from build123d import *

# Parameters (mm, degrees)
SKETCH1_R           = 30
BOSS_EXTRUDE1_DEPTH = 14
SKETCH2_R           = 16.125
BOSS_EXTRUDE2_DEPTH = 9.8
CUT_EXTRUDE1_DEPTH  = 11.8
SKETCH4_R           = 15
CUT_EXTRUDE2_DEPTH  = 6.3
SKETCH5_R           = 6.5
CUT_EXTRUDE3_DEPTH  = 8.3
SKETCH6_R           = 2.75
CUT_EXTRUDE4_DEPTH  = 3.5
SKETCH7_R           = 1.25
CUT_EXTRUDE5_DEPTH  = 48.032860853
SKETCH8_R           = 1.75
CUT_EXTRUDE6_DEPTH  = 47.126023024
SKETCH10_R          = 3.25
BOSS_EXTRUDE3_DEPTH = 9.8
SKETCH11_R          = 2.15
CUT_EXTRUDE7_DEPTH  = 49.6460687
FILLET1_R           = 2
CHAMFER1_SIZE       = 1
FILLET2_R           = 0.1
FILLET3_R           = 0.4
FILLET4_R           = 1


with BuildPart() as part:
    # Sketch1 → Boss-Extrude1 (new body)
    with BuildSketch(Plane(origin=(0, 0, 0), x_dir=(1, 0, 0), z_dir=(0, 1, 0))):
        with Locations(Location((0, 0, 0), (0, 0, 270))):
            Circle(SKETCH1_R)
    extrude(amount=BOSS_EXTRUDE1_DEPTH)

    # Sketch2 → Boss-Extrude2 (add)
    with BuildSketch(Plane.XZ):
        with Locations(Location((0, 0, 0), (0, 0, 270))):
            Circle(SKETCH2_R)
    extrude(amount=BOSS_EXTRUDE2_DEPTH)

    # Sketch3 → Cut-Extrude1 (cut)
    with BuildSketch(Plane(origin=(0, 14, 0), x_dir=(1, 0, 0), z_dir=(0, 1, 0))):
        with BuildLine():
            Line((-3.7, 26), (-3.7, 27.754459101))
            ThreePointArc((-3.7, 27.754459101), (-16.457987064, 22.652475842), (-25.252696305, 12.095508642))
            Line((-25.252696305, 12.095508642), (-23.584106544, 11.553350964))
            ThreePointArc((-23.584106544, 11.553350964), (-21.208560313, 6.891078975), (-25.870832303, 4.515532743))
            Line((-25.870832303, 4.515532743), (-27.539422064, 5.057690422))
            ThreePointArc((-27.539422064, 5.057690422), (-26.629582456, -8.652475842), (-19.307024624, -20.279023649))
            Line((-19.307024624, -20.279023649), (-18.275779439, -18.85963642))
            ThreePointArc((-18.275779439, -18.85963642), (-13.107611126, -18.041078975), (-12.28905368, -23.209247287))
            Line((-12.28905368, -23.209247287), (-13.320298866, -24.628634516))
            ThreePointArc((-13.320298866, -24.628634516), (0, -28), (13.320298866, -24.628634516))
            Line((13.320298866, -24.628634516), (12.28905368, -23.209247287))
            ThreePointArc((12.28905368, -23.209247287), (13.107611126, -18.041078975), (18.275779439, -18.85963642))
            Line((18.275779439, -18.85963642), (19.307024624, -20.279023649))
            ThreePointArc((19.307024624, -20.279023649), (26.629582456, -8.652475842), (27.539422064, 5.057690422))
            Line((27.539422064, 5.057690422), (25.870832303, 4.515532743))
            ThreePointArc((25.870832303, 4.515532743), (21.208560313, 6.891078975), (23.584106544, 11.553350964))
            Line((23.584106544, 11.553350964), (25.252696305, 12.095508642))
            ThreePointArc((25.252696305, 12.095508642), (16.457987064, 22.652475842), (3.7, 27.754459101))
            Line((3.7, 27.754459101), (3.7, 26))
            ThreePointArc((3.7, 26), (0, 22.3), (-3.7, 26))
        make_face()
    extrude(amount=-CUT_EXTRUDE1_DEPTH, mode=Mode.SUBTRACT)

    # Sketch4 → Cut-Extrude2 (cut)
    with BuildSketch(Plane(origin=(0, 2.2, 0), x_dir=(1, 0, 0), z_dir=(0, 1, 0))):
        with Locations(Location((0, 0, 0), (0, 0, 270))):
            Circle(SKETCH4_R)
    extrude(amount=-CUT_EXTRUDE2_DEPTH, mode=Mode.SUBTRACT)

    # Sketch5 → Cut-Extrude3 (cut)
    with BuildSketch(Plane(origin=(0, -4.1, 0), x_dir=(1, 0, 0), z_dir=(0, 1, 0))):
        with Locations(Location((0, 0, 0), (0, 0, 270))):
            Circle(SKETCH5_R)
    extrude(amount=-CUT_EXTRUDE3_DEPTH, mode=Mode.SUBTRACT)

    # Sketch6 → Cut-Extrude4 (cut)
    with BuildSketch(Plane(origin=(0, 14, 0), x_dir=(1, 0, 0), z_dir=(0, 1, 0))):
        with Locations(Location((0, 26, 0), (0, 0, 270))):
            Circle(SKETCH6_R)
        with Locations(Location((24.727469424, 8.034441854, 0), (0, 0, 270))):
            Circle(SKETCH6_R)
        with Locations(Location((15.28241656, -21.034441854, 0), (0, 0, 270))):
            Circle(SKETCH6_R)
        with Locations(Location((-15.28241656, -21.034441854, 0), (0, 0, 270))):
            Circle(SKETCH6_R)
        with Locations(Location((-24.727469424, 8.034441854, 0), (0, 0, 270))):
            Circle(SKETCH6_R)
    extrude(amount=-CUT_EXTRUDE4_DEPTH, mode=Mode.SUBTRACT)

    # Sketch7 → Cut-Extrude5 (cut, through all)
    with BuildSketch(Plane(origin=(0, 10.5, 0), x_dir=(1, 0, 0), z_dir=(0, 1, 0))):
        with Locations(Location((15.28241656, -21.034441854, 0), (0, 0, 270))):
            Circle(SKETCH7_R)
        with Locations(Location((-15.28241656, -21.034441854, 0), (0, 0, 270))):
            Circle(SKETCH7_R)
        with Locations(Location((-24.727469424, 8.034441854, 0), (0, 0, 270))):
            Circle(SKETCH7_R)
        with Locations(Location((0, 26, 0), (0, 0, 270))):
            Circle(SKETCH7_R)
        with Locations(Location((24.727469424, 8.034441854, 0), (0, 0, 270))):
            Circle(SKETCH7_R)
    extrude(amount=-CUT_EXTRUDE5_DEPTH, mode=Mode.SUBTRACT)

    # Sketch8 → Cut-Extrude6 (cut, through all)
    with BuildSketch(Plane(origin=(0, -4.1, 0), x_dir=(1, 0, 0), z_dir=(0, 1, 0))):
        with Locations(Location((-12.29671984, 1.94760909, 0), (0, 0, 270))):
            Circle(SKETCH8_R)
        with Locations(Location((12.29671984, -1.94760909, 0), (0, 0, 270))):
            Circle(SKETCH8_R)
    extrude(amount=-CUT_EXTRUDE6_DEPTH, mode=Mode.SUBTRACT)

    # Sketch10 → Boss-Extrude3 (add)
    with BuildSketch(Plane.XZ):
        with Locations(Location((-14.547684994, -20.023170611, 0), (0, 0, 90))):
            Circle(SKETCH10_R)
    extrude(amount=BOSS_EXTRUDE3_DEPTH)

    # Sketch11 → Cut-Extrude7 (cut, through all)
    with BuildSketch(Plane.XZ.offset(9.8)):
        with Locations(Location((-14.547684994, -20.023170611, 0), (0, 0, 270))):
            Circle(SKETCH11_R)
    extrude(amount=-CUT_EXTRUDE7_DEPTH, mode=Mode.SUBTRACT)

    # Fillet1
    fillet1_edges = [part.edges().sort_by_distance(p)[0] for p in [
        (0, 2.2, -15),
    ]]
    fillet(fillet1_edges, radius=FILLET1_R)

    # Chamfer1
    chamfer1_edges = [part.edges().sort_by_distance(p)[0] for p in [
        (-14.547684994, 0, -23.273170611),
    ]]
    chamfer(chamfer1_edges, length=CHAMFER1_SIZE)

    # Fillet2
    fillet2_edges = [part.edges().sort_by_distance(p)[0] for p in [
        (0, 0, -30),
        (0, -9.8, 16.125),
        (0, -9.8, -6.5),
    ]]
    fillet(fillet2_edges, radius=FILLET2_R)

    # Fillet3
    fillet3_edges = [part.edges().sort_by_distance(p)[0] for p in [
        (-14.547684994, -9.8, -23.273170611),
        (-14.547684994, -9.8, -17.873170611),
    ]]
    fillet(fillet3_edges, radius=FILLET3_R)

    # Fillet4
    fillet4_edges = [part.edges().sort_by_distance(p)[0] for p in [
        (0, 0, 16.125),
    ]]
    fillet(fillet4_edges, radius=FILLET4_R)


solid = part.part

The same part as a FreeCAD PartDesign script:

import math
import FreeCAD as App
import Part
import Sketcher
Q = App.Units.Quantity


def edges_at(feature, points):
    """Names of the edges that pass closest to the given points."""
    edges = feature.Shape.Edges
    near = lambda p: min(range(len(edges)), key=lambda i: edges[i].distToShape(Part.Vertex(*p))[0])
    return sorted({f"Edge{near(p) + 1}" for p in points})

doc = App.newDocument("Part")
body = doc.addObject("PartDesign::Body", "Body")

# Sketch on XZ plane
sketch1 = body.newObject("Sketcher::SketchObject", "Sketch")
sketch1.AttachmentSupport = (doc.getObject("XZ_Plane"), [""])
sketch1.MapMode = "FlatFace"
sketch1.addGeometry(Part.Circle(App.Vector(0, 0, 0), App.Vector(0, 0, 1), 30), False)
sketch1.addConstraint([
    Sketcher.Constraint("Coincident", 0, 3, -1, 1),
    Sketcher.Constraint("Diameter", 0, Q("60 mm")),
])
pad1 = body.newObject("PartDesign::Pad", "Pad")
pad1.Profile = sketch1
pad1.Length = 14
pad1.Reversed = True

# Sketch on XZ plane
sketch2 = body.newObject("Sketcher::SketchObject", "Sketch001")
sketch2.AttachmentSupport = (doc.getObject("XZ_Plane"), [""])
sketch2.MapMode = "FlatFace"
sketch2.addGeometry(Part.Circle(App.Vector(0, 0, 0), App.Vector(0, 0, 1), 16), False)
sketch2.addConstraint([
    Sketcher.Constraint("Coincident", 0, 3, -1, 1),
    Sketcher.Constraint("Diameter", 0, Q("32.25 mm")),
])
pad2 = body.newObject("PartDesign::Pad", "Pad001")
pad2.Profile = sketch2
pad2.Length = 9.8

# Sketch on XZ plane
sketch3 = body.newObject("Sketcher::SketchObject", "Sketch002")
sketch3.AttachmentSupport = (doc.getObject("XZ_Plane"), [""])
sketch3.MapMode = "FlatFace"
sketch3.AttachmentOffset = App.Placement(App.Vector(0, 0, -14), App.Rotation())
sketch3.addGeometry([
    Part.LineSegment(App.Vector(-3.7, -26, 0), App.Vector(-3.7, -27.8, 0)),  # 0
    Part.ArcOfCircle(Part.Circle(App.Vector(0, 0, 0), App.Vector(0, 0, 1), 28), math.radians(-154), math.radians(-98)),  # 1
    Part.LineSegment(App.Vector(-25.3, -12.1, 0), App.Vector(-23.6, -11.6, 0)),  # 2
    Part.ArcOfCircle(Part.Circle(App.Vector(-24.7, -8, 0), App.Vector(0, 0, 1), 3.7), math.radians(-72), math.radians(108)),  # 3
    Part.LineSegment(App.Vector(-25.9, -4.5, 0), App.Vector(-27.5, -5.1, 0)),  # 4
    Part.ArcOfCircle(Part.Circle(App.Vector(0, 0, 0), App.Vector(0, 0, 1), 28), math.radians(134), math.radians(190)),  # 5
    Part.LineSegment(App.Vector(-19.3, 20.3, 0), App.Vector(-18.3, 18.9, 0)),  # 6
    Part.ArcOfCircle(Part.Circle(App.Vector(-15.3, 21, 0), App.Vector(0, 0, 1), 3.7), math.radians(-144), math.radians(36)),  # 7
    Part.LineSegment(App.Vector(-12.3, 23.2, 0), App.Vector(-13.3, 24.6, 0)),  # 8
    Part.ArcOfCircle(Part.Circle(App.Vector(0, 0, 0), App.Vector(0, 0, 1), 28), math.radians(62), math.radians(118)),  # 9
    Part.LineSegment(App.Vector(13.3, 24.6, 0), App.Vector(12.3, 23.2, 0)),  # 10
    Part.ArcOfCircle(Part.Circle(App.Vector(15.3, 21, 0), App.Vector(0, 0, 1), 3.7), math.radians(144), math.radians(324)),  # 11
    Part.LineSegment(App.Vector(18.3, 18.9, 0), App.Vector(19.3, 20.3, 0)),  # 12
    Part.ArcOfCircle(Part.Circle(App.Vector(0, 0, 0), App.Vector(0, 0, 1), 28), math.radians(-10), math.radians(46)),  # 13
    Part.LineSegment(App.Vector(27.5, -5.1, 0), App.Vector(25.9, -4.5, 0)),  # 14
    Part.ArcOfCircle(Part.Circle(App.Vector(24.7, -8, 0), App.Vector(0, 0, 1), 3.7), math.radians(72), math.radians(252)),  # 15
    Part.LineSegment(App.Vector(23.6, -11.6, 0), App.Vector(25.3, -12.1, 0)),  # 16
    Part.ArcOfCircle(Part.Circle(App.Vector(0, 0, 0), App.Vector(0, 0, 1), 28), math.radians(-82), math.radians(-26)),  # 17
    Part.LineSegment(App.Vector(3.7, -27.8, 0), App.Vector(3.7, -26, 0)),  # 18
    Part.ArcOfCircle(Part.Circle(App.Vector(0, -26, 0), App.Vector(0, 0, 1), 3.7), math.radians(0), math.radians(180)),  # 19
], False)
sketch3.addConstraint([
    Sketcher.Constraint("Coincident", 0, 2, 1, 2),
    Sketcher.Constraint("Coincident", 1, 1, 2, 1),
    Sketcher.Constraint("Tangent", 2, 2, 3, 1),
    Sketcher.Constraint("Tangent", 3, 2, 4, 1),
    Sketcher.Constraint("Coincident", 4, 2, 5, 2),
    Sketcher.Constraint("Coincident", 5, 1, 6, 1),
    Sketcher.Constraint("Tangent", 6, 2, 7, 1),
    Sketcher.Constraint("Tangent", 7, 2, 8, 1),
    Sketcher.Constraint("Coincident", 8, 2, 9, 2),
    Sketcher.Constraint("Coincident", 9, 1, 10, 1),
    Sketcher.Constraint("Tangent", 10, 2, 11, 1),
    Sketcher.Constraint("Tangent", 11, 2, 12, 1),
    Sketcher.Constraint("Coincident", 12, 2, 13, 2),
    Sketcher.Constraint("Coincident", 13, 1, 14, 1),
    Sketcher.Constraint("Tangent", 14, 2, 15, 1),
    Sketcher.Constraint("Tangent", 15, 2, 16, 1),
    Sketcher.Constraint("Coincident", 16, 2, 17, 2),
    Sketcher.Constraint("Coincident", 17, 1, 18, 1),
    Sketcher.Constraint("Tangent", 18, 2, 19, 1),
    Sketcher.Constraint("Tangent", 19, 2, 0, 1),
    Sketcher.Constraint("Vertical", 0),
    Sketcher.Constraint("Vertical", 18),
    Sketcher.Constraint("Coincident", 1, 3, -1, 1),
    Sketcher.Constraint("Coincident", 5, 3, -1, 1),
    Sketcher.Constraint("Coincident", 9, 3, -1, 1),
    Sketcher.Constraint("Coincident", 13, 3, -1, 1),
    Sketcher.Constraint("Coincident", 17, 3, -1, 1),
    Sketcher.Constraint("Equal", 1, 5),
    Sketcher.Constraint("Equal", 3, 7),
    Sketcher.Constraint("Equal", 5, 9),
    Sketcher.Constraint("Equal", 7, 11),
    Sketcher.Constraint("Equal", 9, 13),
    Sketcher.Constraint("Equal", 11, 15),
    Sketcher.Constraint("Equal", 13, 17),
    Sketcher.Constraint("Equal", 15, 19),
    Sketcher.Constraint("Symmetric", 7, 3, 11, 3, -2),
    Sketcher.Constraint("Symmetric", 3, 3, 15, 3, -2),
    Sketcher.Constraint("PointOnObject", 19, 3, -2),
    Sketcher.Constraint("Parallel", 2, 4),
    Sketcher.Constraint("Parallel", 6, 8),
    Sketcher.Constraint("Parallel", 10, 12),
    Sketcher.Constraint("Parallel", 14, 16),
    Sketcher.Constraint("Horizontal", 8, 2, 9, 1),
    Sketcher.Constraint("Horizontal", 4, 2, 13, 1),
    Sketcher.Constraint("Equal", 2, 4),
    Sketcher.Constraint("Equal", 4, 6),
    Sketcher.Constraint("Equal", 6, 8),
    Sketcher.Constraint("Radius", 1, Q("28 mm")),
    Sketcher.Constraint("Radius", 3, Q("3.7 mm")),
    Sketcher.Constraint("Angle", 2, Q("18 deg")),
    Sketcher.Constraint("Angle", 6, Q("-54 deg")),
    Sketcher.Constraint("DistanceY", 19, 3, -1, 1, Q("26 mm")),
    Sketcher.Constraint("DistanceY", 6, 2, 8, 2, Q("5.768998 mm")),
])
pocket1 = body.newObject("PartDesign::Pocket", "Pocket")
pocket1.Profile = sketch3
pocket1.Length = 11.8
pocket1.Reversed = True

# Sketch on XZ plane
sketch4 = body.newObject("Sketcher::SketchObject", "Sketch003")
sketch4.AttachmentSupport = (doc.getObject("XZ_Plane"), [""])
sketch4.MapMode = "FlatFace"
sketch4.AttachmentOffset = App.Placement(App.Vector(0, 0, -2.2), App.Rotation())
sketch4.addGeometry(Part.Circle(App.Vector(0, 0, 0), App.Vector(0, 0, 1), 15), False)
sketch4.addConstraint([
    Sketcher.Constraint("Coincident", 0, 3, -1, 1),
    Sketcher.Constraint("Diameter", 0, Q("30 mm")),
])
pocket2 = body.newObject("PartDesign::Pocket", "Pocket001")
pocket2.Profile = sketch4
pocket2.Length = 6.3
pocket2.Reversed = True

# Sketch on XZ plane
sketch5 = body.newObject("Sketcher::SketchObject", "Sketch004")
sketch5.AttachmentSupport = (doc.getObject("XZ_Plane"), [""])
sketch5.MapMode = "FlatFace"
sketch5.AttachmentOffset = App.Placement(App.Vector(0, 0, 4.1), App.Rotation())
sketch5.addGeometry(Part.Circle(App.Vector(0, 0, 0), App.Vector(0, 0, 1), 6), False)
sketch5.addConstraint([
    Sketcher.Constraint("Coincident", 0, 3, -1, 1),
    Sketcher.Constraint("Diameter", 0, Q("13 mm")),
])
pocket3 = body.newObject("PartDesign::Pocket", "Pocket002")
pocket3.Profile = sketch5
pocket3.Length = 8.3
pocket3.Reversed = True

# Sketch on XZ plane
sketch6 = body.newObject("Sketcher::SketchObject", "Sketch005")
sketch6.AttachmentSupport = (doc.getObject("XZ_Plane"), [""])
sketch6.MapMode = "FlatFace"
sketch6.AttachmentOffset = App.Placement(App.Vector(0, 0, -14), App.Rotation())
sketch6.addGeometry([
    Part.Circle(App.Vector(0, -26, 0), App.Vector(0, 0, 1), 2.8),  # 0
    Part.Circle(App.Vector(24.7, -8, 0), App.Vector(0, 0, 1), 2.8),  # 1
    Part.Circle(App.Vector(15.3, 21, 0), App.Vector(0, 0, 1), 2.8),  # 2
    Part.Circle(App.Vector(-15.3, 21, 0), App.Vector(0, 0, 1), 2.8),  # 3
    Part.Circle(App.Vector(-24.7, -8, 0), App.Vector(0, 0, 1), 2.8),  # 4
], False)
sketch6.addConstraint([
    Sketcher.Constraint("Equal", 0, 1),
    Sketcher.Constraint("Equal", 1, 2),
    Sketcher.Constraint("Equal", 2, 3),
    Sketcher.Constraint("Equal", 3, 4),
    Sketcher.Constraint("Symmetric", 2, 3, 3, 3, -2),
    Sketcher.Constraint("Symmetric", 1, 3, 4, 3, -2),
    Sketcher.Constraint("PointOnObject", 0, 3, -2),
    Sketcher.Constraint("Diameter", 0, Q("5.5 mm")),
    Sketcher.Constraint("DistanceY", 0, 3, -1, 1, Q("26 mm")),
    Sketcher.Constraint("DistanceX", -1, 1, 1, 3, Q("24.727469 mm")),
    Sketcher.Constraint("DistanceY", 1, 3, -1, 1, Q("8.034442 mm")),
    Sketcher.Constraint("DistanceY", -1, 1, 2, 3, Q("21.034442 mm")),
    Sketcher.Constraint("DistanceX", -1, 1, 2, 3, Q("15.282417 mm")),
])
pocket4 = body.newObject("PartDesign::Pocket", "Pocket003")
pocket4.Profile = sketch6
pocket4.Length = 3.5
pocket4.Reversed = True

# Sketch on XZ plane
sketch7 = body.newObject("Sketcher::SketchObject", "Sketch006")
sketch7.AttachmentSupport = (doc.getObject("XZ_Plane"), [""])
sketch7.MapMode = "FlatFace"
sketch7.AttachmentOffset = App.Placement(App.Vector(0, 0, -10.5), App.Rotation())
sketch7.addGeometry([
    Part.Circle(App.Vector(15.3, 21, 0), App.Vector(0, 0, 1), 1.2),  # 0
    Part.Circle(App.Vector(-15.3, 21, 0), App.Vector(0, 0, 1), 1.2),  # 1
    Part.Circle(App.Vector(-24.7, -8, 0), App.Vector(0, 0, 1), 1.2),  # 2
    Part.Circle(App.Vector(0, -26, 0), App.Vector(0, 0, 1), 1.2),  # 3
    Part.Circle(App.Vector(24.7, -8, 0), App.Vector(0, 0, 1), 1.2),  # 4
], False)
sketch7.addConstraint([
    Sketcher.Constraint("Equal", 0, 1),
    Sketcher.Constraint("Equal", 1, 2),
    Sketcher.Constraint("Equal", 2, 3),
    Sketcher.Constraint("Equal", 3, 4),
    Sketcher.Constraint("Symmetric", 0, 3, 1, 3, -2),
    Sketcher.Constraint("Symmetric", 2, 3, 4, 3, -2),
    Sketcher.Constraint("PointOnObject", 3, 3, -2),
    Sketcher.Constraint("Diameter", 0, Q("2.5 mm")),
    Sketcher.Constraint("DistanceY", 3, 3, -1, 1, Q("26 mm")),
    Sketcher.Constraint("DistanceY", -1, 1, 0, 3, Q("21.034442 mm")),
    Sketcher.Constraint("DistanceX", 2, 3, -1, 1, Q("24.727469 mm")),
    Sketcher.Constraint("DistanceY", 2, 3, -1, 1, Q("8.034442 mm")),
    Sketcher.Constraint("DistanceX", -1, 1, 0, 3, Q("15.282417 mm")),
])
pocket5 = body.newObject("PartDesign::Pocket", "Pocket004")
pocket5.Profile = sketch7
pocket5.Type = "ThroughAll"
pocket5.Reversed = True

# Sketch on XZ plane
sketch8 = body.newObject("Sketcher::SketchObject", "Sketch007")
sketch8.AttachmentSupport = (doc.getObject("XZ_Plane"), [""])
sketch8.MapMode = "FlatFace"
sketch8.AttachmentOffset = App.Placement(App.Vector(0, 0, 4.1), App.Rotation())
sketch8.addGeometry([
    Part.Circle(App.Vector(-12.3, -1.9, 0), App.Vector(0, 0, 1), 1.8),
    Part.Circle(App.Vector(12.3, 1.9, 0), App.Vector(0, 0, 1), 1.8),
], False)
sketch8.addConstraint([
    Sketcher.Constraint("Equal", 0, 1),
    Sketcher.Constraint("Symmetric", 0, 3, 1, 3, -1, 1),
    Sketcher.Constraint("Diameter", 0, Q("3.5 mm")),
    Sketcher.Constraint("DistanceX", 0, 3, -1, 1, Q("12.29672 mm")),
    Sketcher.Constraint("DistanceY", 0, 3, -1, 1, Q("1.947609 mm")),
])
pocket6 = body.newObject("PartDesign::Pocket", "Pocket005")
pocket6.Profile = sketch8
pocket6.Type = "ThroughAll"
pocket6.Reversed = True

# Sketch on XZ plane
sketch9 = body.newObject("Sketcher::SketchObject", "Sketch008")
sketch9.AttachmentSupport = (doc.getObject("XZ_Plane"), [""])
sketch9.MapMode = "FlatFace"
sketch9.addGeometry(Part.Circle(App.Vector(-14.5, -20, 0), App.Vector(0, 0, 1), 3.2), False)
sketch9.addConstraint([
    Sketcher.Constraint("Diameter", 0, Q("6.5 mm")),
    Sketcher.Constraint("DistanceY", 0, 3, -1, 1, Q("20.023171 mm")),
    Sketcher.Constraint("DistanceX", 0, 3, -1, 1, Q("14.547685 mm")),
])
pad3 = body.newObject("PartDesign::Pad", "Pad002")
pad3.Profile = sketch9
pad3.Length = 9.8

# Sketch on XZ plane
sketch10 = body.newObject("Sketcher::SketchObject", "Sketch009")
sketch10.AttachmentSupport = (doc.getObject("XZ_Plane"), [""])
sketch10.MapMode = "FlatFace"
sketch10.AttachmentOffset = App.Placement(App.Vector(0, 0, 9.8), App.Rotation())
sketch10.addGeometry(Part.Circle(App.Vector(-14.5, -20, 0), App.Vector(0, 0, 1), 2.1), False)
sketch10.addConstraint([
    Sketcher.Constraint("Diameter", 0, Q("4.3 mm")),
    Sketcher.Constraint("DistanceY", 0, 3, -1, 1, Q("20.023171 mm")),
    Sketcher.Constraint("DistanceX", 0, 3, -1, 1, Q("14.547685 mm")),
])
pocket7 = body.newObject("PartDesign::Pocket", "Pocket006")
pocket7.Profile = sketch10
pocket7.Type = "ThroughAll"
doc.recompute()

fillet = body.newObject("PartDesign::Fillet", "Fillet")
fillet.Base = (pocket7, edges_at(pocket7, [(0, 2.2, -15)]))
fillet.Radius = 2
doc.recompute()

chamfer = body.newObject("PartDesign::Chamfer", "Chamfer")
chamfer.Base = (fillet, edges_at(fillet, [(-14.548, 0, -23.273)]))
chamfer.Size = 1
doc.recompute()

fillet2 = body.newObject("PartDesign::Fillet", "Fillet001")
fillet2.Base = (chamfer, edges_at(chamfer, [(0, 0, -30), (0, -9.8, 16.125), (0, -9.8, -6.5)]))
fillet2.Radius = 0.1
doc.recompute()

fillet3 = body.newObject("PartDesign::Fillet", "Fillet002")
fillet3.Base = (fillet2, edges_at(fillet2, [(-14.548, -9.8, -23.273), (-14.548, -9.8, -17.873)]))
fillet3.Radius = 0.4
doc.recompute()

fillet4 = body.newObject("PartDesign::Fillet", "Fillet003")
fillet4.Base = (fillet3, edges_at(fillet3, [(0, 0, 16.125)]))
fillet4.Radius = 1

doc.recompute()
